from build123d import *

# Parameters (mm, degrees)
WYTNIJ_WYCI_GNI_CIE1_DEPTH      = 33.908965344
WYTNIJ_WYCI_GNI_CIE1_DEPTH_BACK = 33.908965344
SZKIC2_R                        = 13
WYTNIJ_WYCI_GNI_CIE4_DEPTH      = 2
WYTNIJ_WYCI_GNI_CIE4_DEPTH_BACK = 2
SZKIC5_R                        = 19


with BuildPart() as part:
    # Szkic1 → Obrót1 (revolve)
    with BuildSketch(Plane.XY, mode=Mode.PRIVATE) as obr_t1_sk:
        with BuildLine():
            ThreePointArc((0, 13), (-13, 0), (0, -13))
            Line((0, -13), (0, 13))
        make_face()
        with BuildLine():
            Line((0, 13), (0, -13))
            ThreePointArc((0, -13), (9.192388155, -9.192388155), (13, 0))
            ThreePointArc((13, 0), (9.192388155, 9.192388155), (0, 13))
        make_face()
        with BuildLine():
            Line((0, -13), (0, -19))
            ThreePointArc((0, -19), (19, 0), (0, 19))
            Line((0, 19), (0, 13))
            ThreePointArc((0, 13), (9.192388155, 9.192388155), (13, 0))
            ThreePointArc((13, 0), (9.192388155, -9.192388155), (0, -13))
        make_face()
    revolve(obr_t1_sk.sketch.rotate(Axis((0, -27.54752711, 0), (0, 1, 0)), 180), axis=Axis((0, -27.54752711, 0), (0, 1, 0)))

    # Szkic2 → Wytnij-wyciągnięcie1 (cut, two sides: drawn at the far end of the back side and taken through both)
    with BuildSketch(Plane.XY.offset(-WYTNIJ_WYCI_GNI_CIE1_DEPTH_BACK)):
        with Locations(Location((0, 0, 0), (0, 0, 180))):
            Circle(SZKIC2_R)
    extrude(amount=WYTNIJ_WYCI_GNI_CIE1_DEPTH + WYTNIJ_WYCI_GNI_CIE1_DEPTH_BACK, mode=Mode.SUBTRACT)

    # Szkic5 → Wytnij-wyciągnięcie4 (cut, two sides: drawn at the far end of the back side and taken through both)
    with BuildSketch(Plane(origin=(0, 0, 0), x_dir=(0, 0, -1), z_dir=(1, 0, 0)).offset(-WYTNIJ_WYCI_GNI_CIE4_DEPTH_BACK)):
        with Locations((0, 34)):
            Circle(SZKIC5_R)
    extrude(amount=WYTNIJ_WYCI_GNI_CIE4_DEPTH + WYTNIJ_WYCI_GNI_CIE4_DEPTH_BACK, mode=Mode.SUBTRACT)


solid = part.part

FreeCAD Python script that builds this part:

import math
import FreeCAD as App
import Part
import Sketcher

doc = App.newDocument("Part")
params = doc.addObject("Spreadsheet::Sheet", "Params")
for row, (alias, value) in enumerate([
    ("sketch1_radius", "13 mm"),
    ("sketch1_radius2", "19 mm"),
    ("revolution_angle", "360 deg"),
    ("sketch2_diameter", "26 mm"),
    ("sketch3_diameter", "38 mm"),
    ("pocket2_length", "2 mm"),
    ("pocket2_length2", "2 mm"),
], start=1):
    params.set(f"A{row}", alias)
    params.set(f"B{row}", "=" + value)
    params.setAlias(f"B{row}", alias)

body = doc.addObject("PartDesign::Body", "Body")

# Sketch on XY plane
sketch1 = body.newObject("Sketcher::SketchObject", "Sketch")
sketch1.AttachmentSupport = (doc.getObject("XY_Plane"), [""])
sketch1.MapMode = "FlatFace"
sketch1.addGeometry(Part.ArcOfCircle(Part.Circle(App.Vector(0, 0, 0), App.Vector(0, 0, 1), 13), math.radians(90), math.radians(270)), False)
sketch1.addGeometry(Part.LineSegment(App.Vector(0, -13, 0), App.Vector(0, -19, 0)), False)
sketch1.addGeometry(Part.ArcOfCircle(Part.Circle(App.Vector(0, 0, 0), App.Vector(0, 0, 1), 19), math.radians(-90), math.radians(90)), False)
sketch1.addGeometry(Part.LineSegment(App.Vector(0, 19, 0), App.Vector(0, 13, 0)), False)
sketch1.addConstraint(Sketcher.Constraint("Coincident", 0, 2, 1, 1))
sketch1.addConstraint(Sketcher.Constraint("Coincident", 1, 2, 2, 1))
sketch1.addConstraint(Sketcher.Constraint("Coincident", 2, 2, 3, 1))
sketch1.addConstraint(Sketcher.Constraint("Coincident", 3, 2, 0, 1))
sketch1.addConstraint(Sketcher.Constraint("Vertical", 1))
sketch1.addConstraint(Sketcher.Constraint("Vertical", 3))
sketch1.addConstraint(Sketcher.Constraint("Coincident", 0, 3, -1, 1))
sketch1.addConstraint(Sketcher.Constraint("Coincident", 2, 3, -1, 1))
sketch1.addConstraint(Sketcher.Constraint("PointOnObject", 0, 2, -2))
sketch1.addConstraint(Sketcher.Constraint("PointOnObject", 2, 2, -2))
sketch1.addConstraint(Sketcher.Constraint("Radius", 0, 13.0))
sketch1.addConstraint(Sketcher.Constraint("Radius", 2, 19.0))
sketch1.setExpression("Constraints[10]", "Params.sketch1_radius")
sketch1.setExpression("Constraints[11]", "Params.sketch1_radius2")
revolution = body.newObject("PartDesign::Revolution", "Revolution")
revolution.Profile = sketch1
revolution.ReferenceAxis = (sketch1, ["V_Axis"])
revolution.setExpression("Angle", "Params.revolution_angle")

# Sketch on XY plane
sketch2 = body.newObject("Sketcher::SketchObject", "Sketch001")
sketch2.AttachmentSupport = (doc.getObject("XY_Plane"), [""])
sketch2.MapMode = "FlatFace"
sketch2.addGeometry(Part.Circle(App.Vector(0, 0, 0), App.Vector(0, 0, 1), 13), False)
sketch2.addConstraint(Sketcher.Constraint("Coincident", 0, 3, -1, 1))
sketch2.addConstraint(Sketcher.Constraint("Diameter", 0, 26.0))
sketch2.setExpression("Constraints[1]", "Params.sketch2_diameter")
pocket1 = body.newObject("PartDesign::Pocket", "Pocket")
pocket1.Profile = sketch2
pocket1.Type = "ThroughAll"
pocket1.Midplane = True

# Sketch on YZ plane
sketch3 = body.newObject("Sketcher::SketchObject", "Sketch002")
sketch3.AttachmentSupport = (doc.getObject("YZ_Plane"), [""])
sketch3.MapMode = "FlatFace"
sketch3.addGeometry(Part.Circle(App.Vector(34, 0, 0), App.Vector(0, 0, 1), 19), False)
sketch3.addConstraint(Sketcher.Constraint("PointOnObject", 0, 3, -1))
sketch3.addConstraint(Sketcher.Constraint("Diameter", 0, 38.0))
sketch3.addConstraint(Sketcher.Constraint("DistanceX", -1, 1, 0, 3, 34.0))
sketch3.setExpression("Constraints[1]", "Params.sketch3_diameter")
pocket2 = body.newObject("PartDesign::Pocket", "Pocket001")
pocket2.Profile = sketch3
pocket2.Type = "TwoLengths"
pocket2.setExpression("Length", "Params.pocket2_length")
pocket2.setExpression("Length2", "Params.pocket2_length2")
pocket2.Reversed = True

doc.recompute()
